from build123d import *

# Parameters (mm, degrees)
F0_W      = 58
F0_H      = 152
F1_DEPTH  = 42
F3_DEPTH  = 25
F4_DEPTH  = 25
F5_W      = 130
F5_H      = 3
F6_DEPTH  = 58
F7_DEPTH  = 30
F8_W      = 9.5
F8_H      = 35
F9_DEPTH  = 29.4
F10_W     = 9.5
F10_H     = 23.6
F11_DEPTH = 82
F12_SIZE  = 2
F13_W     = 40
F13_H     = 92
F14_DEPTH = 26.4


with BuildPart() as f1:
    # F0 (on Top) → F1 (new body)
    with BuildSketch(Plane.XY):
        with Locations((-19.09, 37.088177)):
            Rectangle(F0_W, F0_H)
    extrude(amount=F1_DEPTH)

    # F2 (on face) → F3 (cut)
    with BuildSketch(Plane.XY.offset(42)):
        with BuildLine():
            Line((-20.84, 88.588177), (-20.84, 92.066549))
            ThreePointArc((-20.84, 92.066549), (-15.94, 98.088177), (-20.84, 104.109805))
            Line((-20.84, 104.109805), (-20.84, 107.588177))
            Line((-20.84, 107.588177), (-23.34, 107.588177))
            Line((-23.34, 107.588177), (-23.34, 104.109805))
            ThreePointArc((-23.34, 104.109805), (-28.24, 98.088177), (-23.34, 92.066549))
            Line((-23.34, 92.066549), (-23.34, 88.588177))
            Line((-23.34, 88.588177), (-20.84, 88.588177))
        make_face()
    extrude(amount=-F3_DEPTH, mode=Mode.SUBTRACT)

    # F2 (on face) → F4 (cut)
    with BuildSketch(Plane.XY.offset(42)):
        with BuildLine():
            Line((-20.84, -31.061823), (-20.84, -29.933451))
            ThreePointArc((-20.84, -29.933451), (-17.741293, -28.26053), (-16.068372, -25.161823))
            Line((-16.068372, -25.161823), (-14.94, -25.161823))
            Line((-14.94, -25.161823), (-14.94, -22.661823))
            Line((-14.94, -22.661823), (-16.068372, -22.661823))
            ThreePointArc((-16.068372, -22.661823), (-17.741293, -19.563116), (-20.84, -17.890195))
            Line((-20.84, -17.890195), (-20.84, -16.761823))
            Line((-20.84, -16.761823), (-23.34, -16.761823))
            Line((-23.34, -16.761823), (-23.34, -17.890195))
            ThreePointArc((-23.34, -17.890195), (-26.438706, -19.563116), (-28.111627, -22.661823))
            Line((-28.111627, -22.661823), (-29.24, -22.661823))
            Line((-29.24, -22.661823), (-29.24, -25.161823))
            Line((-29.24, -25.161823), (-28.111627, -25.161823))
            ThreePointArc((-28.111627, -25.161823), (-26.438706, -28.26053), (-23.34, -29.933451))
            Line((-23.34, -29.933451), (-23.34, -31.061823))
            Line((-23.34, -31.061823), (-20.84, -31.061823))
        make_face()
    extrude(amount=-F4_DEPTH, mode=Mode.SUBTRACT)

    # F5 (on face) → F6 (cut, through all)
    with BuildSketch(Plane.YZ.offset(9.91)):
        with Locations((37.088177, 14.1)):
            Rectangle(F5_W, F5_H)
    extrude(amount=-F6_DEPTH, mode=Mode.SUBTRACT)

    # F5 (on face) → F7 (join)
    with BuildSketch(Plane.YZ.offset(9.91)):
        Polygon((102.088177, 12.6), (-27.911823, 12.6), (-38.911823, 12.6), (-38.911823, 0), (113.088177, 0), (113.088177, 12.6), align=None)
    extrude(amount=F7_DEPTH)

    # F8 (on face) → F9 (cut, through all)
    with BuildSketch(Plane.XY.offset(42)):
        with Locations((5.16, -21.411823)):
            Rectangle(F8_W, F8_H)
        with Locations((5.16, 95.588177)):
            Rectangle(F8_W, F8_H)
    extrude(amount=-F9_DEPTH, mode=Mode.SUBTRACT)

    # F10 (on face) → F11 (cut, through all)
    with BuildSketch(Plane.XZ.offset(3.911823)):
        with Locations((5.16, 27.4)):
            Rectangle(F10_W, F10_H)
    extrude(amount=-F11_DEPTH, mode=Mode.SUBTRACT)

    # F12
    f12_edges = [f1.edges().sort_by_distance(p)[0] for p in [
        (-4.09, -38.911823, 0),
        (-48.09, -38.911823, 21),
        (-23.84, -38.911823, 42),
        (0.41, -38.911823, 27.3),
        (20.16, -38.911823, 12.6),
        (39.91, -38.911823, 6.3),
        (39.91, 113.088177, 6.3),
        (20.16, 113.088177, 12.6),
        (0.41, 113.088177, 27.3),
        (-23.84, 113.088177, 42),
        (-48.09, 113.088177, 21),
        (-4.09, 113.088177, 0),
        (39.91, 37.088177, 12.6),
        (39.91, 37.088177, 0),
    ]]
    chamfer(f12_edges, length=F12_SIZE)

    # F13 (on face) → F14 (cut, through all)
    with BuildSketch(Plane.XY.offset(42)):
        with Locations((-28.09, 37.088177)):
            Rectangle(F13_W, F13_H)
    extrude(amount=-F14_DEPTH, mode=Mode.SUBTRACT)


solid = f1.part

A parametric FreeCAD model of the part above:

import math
import FreeCAD as App
import Part
import Sketcher
Q = App.Units.Quantity


def edges_at(feature, points):
    """Names of the edges that pass closest to the given points."""
    edges = feature.Shape.Edges
    near = lambda p: min(range(len(edges)), key=lambda i: edges[i].distToShape(Part.Vertex(*p))[0])
    return sorted({f"Edge{near(p) + 1}" for p in points})

doc = App.newDocument("Part")
body = doc.addObject("PartDesign::Body", "Body")

# Sketch on XY plane
sketch1 = body.newObject("Sketcher::SketchObject", "Sketch")
sketch1.AttachmentSupport = (doc.getObject("XY_Plane"), [""])
sketch1.MapMode = "FlatFace"
sketch1.addGeometry(Part.LineSegment(App.Vector(-48, 113, 0), App.Vector(-48, -39, 0)), False)
sketch1.addGeometry(Part.LineSegment(App.Vector(-48, -39, 0), App.Vector(10, -39, 0)), False)
sketch1.addGeometry(Part.LineSegment(App.Vector(10, -39, 0), App.Vector(10, 113, 0)), False)
sketch1.addGeometry(Part.LineSegment(App.Vector(10, 113, 0), App.Vector(-48, 113, 0)), False)
sketch1.addConstraint(Sketcher.Constraint("Coincident", 0, 2, 1, 1))
sketch1.addConstraint(Sketcher.Constraint("Coincident", 1, 2, 2, 1))
sketch1.addConstraint(Sketcher.Constraint("Coincident", 2, 2, 3, 1))
sketch1.addConstraint(Sketcher.Constraint("Coincident", 3, 2, 0, 1))
sketch1.addConstraint(Sketcher.Constraint("Vertical", 0))
sketch1.addConstraint(Sketcher.Constraint("Horizontal", 1))
sketch1.addConstraint(Sketcher.Constraint("Vertical", 2))
sketch1.addConstraint(Sketcher.Constraint("Horizontal", 3))
sketch1.addConstraint(Sketcher.Constraint("DistanceX", 1, 1, 1, 2, Q("58 mm")))
sketch1.addConstraint(Sketcher.Constraint("DistanceY", 0, 2, 0, 1, Q("152 mm")))
sketch1.addConstraint(Sketcher.Constraint("DistanceX", 0, 2, -1, 1, Q("48.09 mm")))
sketch1.addConstraint(Sketcher.Constraint("DistanceY", 0, 2, -1, 1, Q("38.911823 mm")))
pad1 = body.newObject("PartDesign::Pad", "Pad")
pad1.Profile = sketch1
pad1.Length = 42

# Sketch on XY plane
sketch2 = body.newObject("Sketcher::SketchObject", "Sketch001")
sketch2.AttachmentSupport = (doc.getObject("XY_Plane"), [""])
sketch2.MapMode = "FlatFace"
sketch2.AttachmentOffset = App.Placement(App.Vector(0, 0, 42), App.Rotation())
sketch2.addGeometry(Part.LineSegment(App.Vector(-20.8, 88.6, 0), App.Vector(-20.8, 92.1, 0)), False)
sketch2.addGeometry(Part.ArcOfCircle(Part.Circle(App.Vector(-22.1, 98.1, 0), App.Vector(0, 0, 1), 6.2), math.radians(-78), math.radians(78)), False)
sketch2.addGeometry(Part.LineSegment(App.Vector(-20.8, 104.1, 0), App.Vector(-20.8, 107.6, 0)), False)
sketch2.addGeometry(Part.LineSegment(App.Vector(-20.8, 107.6, 0), App.Vector(-23.3, 107.6, 0)), False)
sketch2.addGeometry(Part.LineSegment(App.Vector(-23.3, 107.6, 0), App.Vector(-23.3, 104.1, 0)), False)
sketch2.addGeometry(Part.ArcOfCircle(Part.Circle(App.Vector(-22.1, 98.1, 0), App.Vector(0, 0, 1), 6.2), math.radians(102), math.radians(258)), False)
sketch2.addGeometry(Part.LineSegment(App.Vector(-23.3, 92.1, 0), App.Vector(-23.3, 88.6, 0)), False)
sketch2.addGeometry(Part.LineSegment(App.Vector(-23.3, 88.6, 0), App.Vector(-20.8, 88.6, 0)), False)
sketch2.addConstraint(Sketcher.Constraint("Coincident", 0, 2, 1, 1))
sketch2.addConstraint(Sketcher.Constraint("Coincident", 1, 2, 2, 1))
sketch2.addConstraint(Sketcher.Constraint("Coincident", 2, 2, 3, 1))
sketch2.addConstraint(Sketcher.Constraint("Coincident", 3, 2, 4, 1))
sketch2.addConstraint(Sketcher.Constraint("Coincident", 4, 2, 5, 1))
sketch2.addConstraint(Sketcher.Constraint("Coincident", 5, 2, 6, 1))
sketch2.addConstraint(Sketcher.Constraint("Coincident", 6, 2, 7, 1))
sketch2.addConstraint(Sketcher.Constraint("Coincident", 7, 2, 0, 1))
sketch2.addConstraint(Sketcher.Constraint("Vertical", 0))
sketch2.addConstraint(Sketcher.Constraint("Vertical", 2))
sketch2.addConstraint(Sketcher.Constraint("Horizontal", 3))
sketch2.addConstraint(Sketcher.Constraint("Vertical", 4))
sketch2.addConstraint(Sketcher.Constraint("Vertical", 6))
sketch2.addConstraint(Sketcher.Constraint("Horizontal", 7))
sketch2.addConstraint(Sketcher.Constraint("Coincident", 5, 3, 1, 3))
sketch2.addConstraint(Sketcher.Constraint("Equal", 1, 5))
sketch2.addConstraint(Sketcher.Constraint("Horizontal", 1, 2, 4, 2))
sketch2.addConstraint(Sketcher.Constraint("Horizontal", 0, 2, 5, 2))
sketch2.addConstraint(Sketcher.Constraint("Vertical", 0, 2, 1, 2))
sketch2.addConstraint(Sketcher.Constraint("Equal", 0, 2))
sketch2.addConstraint(Sketcher.Constraint("Radius", 1, Q("6.15 mm")))
sketch2.addConstraint(Sketcher.Constraint("DistanceX", 3, 2, 3, 1, Q("2.5 mm")))
sketch2.addConstraint(Sketcher.Constraint("DistanceY", 5, 3, 2, 2, Q("9.5 mm")))
sketch2.addConstraint(Sketcher.Constraint("DistanceX", 1, 3, -1, 1, Q("22.09 mm")))
sketch2.addConstraint(Sketcher.Constraint("DistanceY", -1, 1, 0, 2, Q("92.066549 mm")))
pocket1 = body.newObject("PartDesign::Pocket", "Pocket")
pocket1.Profile = sketch2
pocket1.Length = 25

# Sketch on XY plane
sketch3 = body.newObject("Sketcher::SketchObject", "Sketch002")
sketch3.AttachmentSupport = (doc.getObject("XY_Plane"), [""])
sketch3.MapMode = "FlatFace"
sketch3.AttachmentOffset = App.Placement(App.Vector(0, 0, 42), App.Rotation())
sketch3.addGeometry(Part.LineSegment(App.Vector(-20.8, -31.1, 0), App.Vector(-20.8, -29.9, 0)), False)
sketch3.addGeometry(Part.ArcOfCircle(Part.Circle(App.Vector(-22.1, -23.9, 0), App.Vector(0, 0, 1), 6.1), math.radians(-78), math.radians(-12)), False)
sketch3.addGeometry(Part.LineSegment(App.Vector(-16.1, -25.2, 0), App.Vector(-14.9, -25.2, 0)), False)
sketch3.addGeometry(Part.LineSegment(App.Vector(-14.9, -25.2, 0), App.Vector(-14.9, -22.7, 0)), False)
sketch3.addGeometry(Part.LineSegment(App.Vector(-14.9, -22.7, 0), App.Vector(-16.1, -22.7, 0)), False)
sketch3.addGeometry(Part.ArcOfCircle(Part.Circle(App.Vector(-22.1, -23.9, 0), App.Vector(0, 0, 1), 6.1), math.radians(12), math.radians(78)), False)
sketch3.addGeometry(Part.LineSegment(App.Vector(-20.8, -17.9, 0), App.Vector(-20.8, -16.8, 0)), False)
sketch3.addGeometry(Part.LineSegment(App.Vector(-20.8, -16.8, 0), App.Vector(-23.3, -16.8, 0)), False)
sketch3.addGeometry(Part.LineSegment(App.Vector(-23.3, -16.8, 0), App.Vector(-23.3, -17.9, 0)), False)
sketch3.addGeometry(Part.ArcOfCircle(Part.Circle(App.Vector(-22.1, -23.9, 0), App.Vector(0, 0, 1), 6.2), math.radians(102), math.radians(168)), False)
sketch3.addGeometry(Part.LineSegment(App.Vector(-28.1, -22.7, 0), App.Vector(-29.2, -22.7, 0)), False)
sketch3.addGeometry(Part.LineSegment(App.Vector(-29.2, -22.7, 0), App.Vector(-29.2, -25.2, 0)), False)
sketch3.addGeometry(Part.LineSegment(App.Vector(-29.2, -25.2, 0), App.Vector(-28.1, -25.2, 0)), False)
sketch3.addGeometry(Part.ArcOfCircle(Part.Circle(App.Vector(-22.1, -23.9, 0), App.Vector(0, 0, 1), 6.2), math.radians(-168), math.radians(-102)), False)
sketch3.addGeometry(Part.LineSegment(App.Vector(-23.3, -29.9, 0), App.Vector(-23.3, -31.1, 0)), False)
sketch3.addGeometry(Part.LineSegment(App.Vector(-23.3, -31.1, 0), App.Vector(-20.8, -31.1, 0)), False)
sketch3.addConstraint(Sketcher.Constraint("Coincident", 0, 2, 1, 1))
sketch3.addConstraint(Sketcher.Constraint("Coincident", 1, 2, 2, 1))
sketch3.addConstraint(Sketcher.Constraint("Coincident", 2, 2, 3, 1))
sketch3.addConstraint(Sketcher.Constraint("Coincident", 3, 2, 4, 1))
sketch3.addConstraint(Sketcher.Constraint("Coincident", 4, 2, 5, 1))
sketch3.addConstraint(Sketcher.Constraint("Coincident", 5, 2, 6, 1))
sketch3.addConstraint(Sketcher.Constraint("Coincident", 6, 2, 7, 1))
sketch3.addConstraint(Sketcher.Constraint("Coincident", 7, 2, 8, 1))
sketch3.addConstraint(Sketcher.Constraint("Coincident", 8, 2, 9, 1))
sketch3.addConstraint(Sketcher.Constraint("Coincident", 9, 2, 10, 1))
sketch3.addConstraint(Sketcher.Constraint("Coincident", 10, 2, 11, 1))
sketch3.addConstraint(Sketcher.Constraint("Coincident", 11, 2, 12, 1))
sketch3.addConstraint(Sketcher.Constraint("Coincident", 12, 2, 13, 1))
sketch3.addConstraint(Sketcher.Constraint("Coincident", 13, 2, 14, 1))
sketch3.addConstraint(Sketcher.Constraint("Coincident", 14, 2, 15, 1))
sketch3.addConstraint(Sketcher.Constraint("Coincident", 15, 2, 0, 1))
sketch3.addConstraint(Sketcher.Constraint("Vertical", 0))
sketch3.addConstraint(Sketcher.Constraint("Horizontal", 2))
sketch3.addConstraint(Sketcher.Constraint("Vertical", 3))
sketch3.addConstraint(Sketcher.Constraint("Horizontal", 4))
sketch3.addConstraint(Sketcher.Constraint("Vertical", 6))
sketch3.addConstraint(Sketcher.Constraint("Horizontal", 7))
sketch3.addConstraint(Sketcher.Constraint("Vertical", 8))
sketch3.addConstraint(Sketcher.Constraint("Horizontal", 10))
sketch3.addConstraint(Sketcher.Constraint("Vertical", 11))
sketch3.addConstraint(Sketcher.Constraint("Horizontal", 12))
sketch3.addConstraint(Sketcher.Constraint("Vertical", 14))
sketch3.addConstraint(Sketcher.Constraint("Horizontal", 15))
sketch3.addConstraint(Sketcher.Constraint("Coincident", 5, 3, 1, 3))
sketch3.addConstraint(Sketcher.Constraint("Coincident", 9, 3, 1, 3))
sketch3.addConstraint(Sketcher.Constraint("Coincident", 13, 3, 1, 3))
sketch3.addConstraint(Sketcher.Constraint("Equal", 1, 5))
sketch3.addConstraint(Sketcher.Constraint("Equal", 5, 9))
sketch3.addConstraint(Sketcher.Constraint("Equal", 9, 13))
sketch3.addConstraint(Sketcher.Constraint("Horizontal", 5, 2, 8, 2))
sketch3.addConstraint(Sketcher.Constraint("Horizontal", 4, 2, 9, 2))
sketch3.addConstraint(Sketcher.Constraint("Horizontal", 2, 2, 11, 2))
sketch3.addConstraint(Sketcher.Constraint("Horizontal", 0, 2, 13, 2))
sketch3.addConstraint(Sketcher.Constraint("Vertical", 1, 2, 4, 2))
sketch3.addConstraint(Sketcher.Constraint("Vertical", 0, 2, 5, 2))
sketch3.addConstraint(Sketcher.Constraint("Equal", 4, 10))
sketch3.addConstraint(Sketcher.Constraint("Equal", 12, 0))
sketch3.addConstraint(Sketcher.Constraint("Equal", 15, 3))
sketch3.addConstraint(Sketcher.Constraint("Equal", 0, 6))
sketch3.addConstraint(Sketcher.Constraint("Radius", 1, Q("6.15 mm")))
sketch3.addConstraint(Sketcher.Constraint("DistanceX", 7, 2, 7, 1, Q("2.5 mm")))
sketch3.addConstraint(Sketcher.Constraint("DistanceX", 1, 3, -1, 1, Q("22.09 mm")))
sketch3.addConstraint(Sketcher.Constraint("DistanceX", 2, 2, -1, 1, Q("14.94 mm")))
sketch3.addConstraint(Sketcher.Constraint("DistanceY", 0, 2, -1, 1, Q("29.933451 mm")))
pocket2 = body.newObject("PartDesign::Pocket", "Pocket001")
pocket2.Profile = sketch3
pocket2.Length = 25

# Sketch on YZ plane
sketch4 = body.newObject("Sketcher::SketchObject", "Sketch003")
sketch4.AttachmentSupport = (doc.getObject("YZ_Plane"), [""])
sketch4.MapMode = "FlatFace"
sketch4.AttachmentOffset = App.Placement(App.Vector(0, 0, 9.91), App.Rotation())
sketch4.addGeometry(Part.LineSegment(App.Vector(-27.9, 15.6, 0), App.Vector(-27.9, 12.6, 0)), False)
sketch4.addGeometry(Part.LineSegment(App.Vector(-27.9, 12.6, 0), App.Vector(102.1, 12.6, 0)), False)
sketch4.addGeometry(Part.LineSegment(App.Vector(102.1, 12.6, 0), App.Vector(102.1, 15.6, 0)), False)
sketch4.addGeometry(Part.LineSegment(App.Vector(102.1, 15.6, 0), App.Vector(-27.9, 15.6, 0)), False)
sketch4.addConstraint(Sketcher.Constraint("Coincident", 0, 2, 1, 1))
sketch4.addConstraint(Sketcher.Constraint("Coincident", 1, 2, 2, 1))
sketch4.addConstraint(Sketcher.Constraint("Coincident", 2, 2, 3, 1))
sketch4.addConstraint(Sketcher.Constraint("Coincident", 3, 2, 0, 1))
sketch4.addConstraint(Sketcher.Constraint("Vertical", 0))
sketch4.addConstraint(Sketcher.Constraint("Horizontal", 1))
sketch4.addConstraint(Sketcher.Constraint("Vertical", 2))
sketch4.addConstraint(Sketcher.Constraint("Horizontal", 3))
sketch4.addConstraint(Sketcher.Constraint("DistanceX", 1, 1, 1, 2, Q("130 mm")))
sketch4.addConstraint(Sketcher.Constraint("DistanceY", 0, 2, 0, 1, Q("3 mm")))
sketch4.addConstraint(Sketcher.Constraint("DistanceY", -1, 1, 0, 2, Q("12.6 mm")))
sketch4.addConstraint(Sketcher.Constraint("DistanceX", 0, 2, -1, 1, Q("27.911823 mm")))
pocket3 = body.newObject("PartDesign::Pocket", "Pocket002")
pocket3.Profile = sketch4
pocket3.Type = "ThroughAll"

# Sketch on YZ plane
sketch5 = body.newObject("Sketcher::SketchObject", "Sketch004")
sketch5.AttachmentSupport = (doc.getObject("YZ_Plane"), [""])
sketch5.MapMode = "FlatFace"
sketch5.AttachmentOffset = App.Placement(App.Vector(0, 0, 9.91), App.Rotation())
sketch5.addGeometry(Part.LineSegment(App.Vector(-39, 13, 0), App.Vector(-39, 0, 0)), False)
sketch5.addGeometry(Part.LineSegment(App.Vector(-39, 0, 0), App.Vector(113, 0, 0)), False)
sketch5.addGeometry(Part.LineSegment(App.Vector(113, 0, 0), App.Vector(113, 13, 0)), False)
sketch5.addGeometry(Part.LineSegment(App.Vector(113, 13, 0), App.Vector(-39, 13, 0)), False)
sketch5.addConstraint(Sketcher.Constraint("Coincident", 0, 2, 1, 1))
sketch5.addConstraint(Sketcher.Constraint("Coincident", 1, 2, 2, 1))
sketch5.addConstraint(Sketcher.Constraint("Coincident", 2, 2, 3, 1))
sketch5.addConstraint(Sketcher.Constraint("Coincident", 3, 2, 0, 1))
sketch5.addConstraint(Sketcher.Constraint("Vertical", 0))
sketch5.addConstraint(Sketcher.Constraint("Horizontal", 1))
sketch5.addConstraint(Sketcher.Constraint("Vertical", 2))
sketch5.addConstraint(Sketcher.Constraint("Horizontal", 3))
sketch5.addConstraint(Sketcher.Constraint("PointOnObject", 0, 2, -1))
sketch5.addConstraint(Sketcher.Constraint("DistanceX", 1, 1, 1, 2, Q("152 mm")))
sketch5.addConstraint(Sketcher.Constraint("DistanceY", 0, 2, 0, 1, Q("12.6 mm")))
sketch5.addConstraint(Sketcher.Constraint("DistanceX", 0, 2, -1, 1, Q("38.911823 mm")))
pad2 = body.newObject("PartDesign::Pad", "Pad001")
pad2.Profile = sketch5
pad2.Length = 30

# Sketch on XY plane
sketch6 = body.newObject("Sketcher::SketchObject", "Sketch005")
sketch6.AttachmentSupport = (doc.getObject("XY_Plane"), [""])
sketch6.MapMode = "FlatFace"
sketch6.AttachmentOffset = App.Placement(App.Vector(0, 0, 42), App.Rotation())
sketch6.addGeometry(Part.LineSegment(App.Vector(0, -4, 0), App.Vector(0, -39, 0)), False)
sketch6.addGeometry(Part.LineSegment(App.Vector(0, -39, 0), App.Vector(10, -39, 0)), False)
sketch6.addGeometry(Part.LineSegment(App.Vector(10, -39, 0), App.Vector(10, -4, 0)), False)
sketch6.addGeometry(Part.LineSegment(App.Vector(10, -4, 0), App.Vector(0, -4, 0)), False)
sketch6.addGeometry(Part.LineSegment(App.Vector(0, 113, 0), App.Vector(0, 78, 0)), False)
sketch6.addGeometry(Part.LineSegment(App.Vector(0, 78, 0), App.Vector(10, 78, 0)), False)
sketch6.addGeometry(Part.LineSegment(App.Vector(10, 78, 0), App.Vector(10, 113, 0)), False)
sketch6.addGeometry(Part.LineSegment(App.Vector(10, 113, 0), App.Vector(0, 113, 0)), False)
sketch6.addConstraint(Sketcher.Constraint("Coincident", 0, 2, 1, 1))
sketch6.addConstraint(Sketcher.Constraint("Coincident", 1, 2, 2, 1))
sketch6.addConstraint(Sketcher.Constraint("Coincident", 2, 2, 3, 1))
sketch6.addConstraint(Sketcher.Constraint("Coincident", 3, 2, 0, 1))
sketch6.addConstraint(Sketcher.Constraint("Coincident", 4, 2, 5, 1))
sketch6.addConstraint(Sketcher.Constraint("Coincident", 5, 2, 6, 1))
sketch6.addConstraint(Sketcher.Constraint("Coincident", 6, 2, 7, 1))
sketch6.addConstraint(Sketcher.Constraint("Coincident", 7, 2, 4, 1))
sketch6.addConstraint(Sketcher.Constraint("Vertical", 0))
sketch6.addConstraint(Sketcher.Constraint("Horizontal", 1))
sketch6.addConstraint(Sketcher.Constraint("Vertical", 2))
sketch6.addConstraint(Sketcher.Constraint("Horizontal", 3))
sketch6.addConstraint(Sketcher.Constraint("Vertical", 4))
sketch6.addConstraint(Sketcher.Constraint("Horizontal", 5))
sketch6.addConstraint(Sketcher.Constraint("Vertical", 6))
sketch6.addConstraint(Sketcher.Constraint("Horizontal", 7))
sketch6.addConstraint(Sketcher.Constraint("Vertical", 3, 2, 4, 2))
sketch6.addConstraint(Sketcher.Constraint("Vertical", 2, 2, 5, 2))
sketch6.addConstraint(Sketcher.Constraint("Equal", 2, 4))
sketch6.addConstraint(Sketcher.Constraint("DistanceY", 0, 2, 0, 1, Q("35 mm")))
sketch6.addConstraint(Sketcher.Constraint("DistanceX", 1, 1, 1, 2, Q("9.5 mm")))
sketch6.addConstraint(Sketcher.Constraint("DistanceY", 3, 2, 4, 2, Q("82 mm")))
sketch6.addConstraint(Sketcher.Constraint("DistanceX", -1, 1, 0, 2, Q("0.41 mm")))
sketch6.addConstraint(Sketcher.Constraint("DistanceY", 0, 2, -1, 1, Q("38.911823 mm")))
pocket4 = body.newObject("PartDesign::Pocket", "Pocket003")
pocket4.Profile = sketch6
pocket4.Length = 29.4

# Sketch on XZ plane
sketch7 = body.newObject("Sketcher::SketchObject", "Sketch006")
sketch7.AttachmentSupport = (doc.getObject("XZ_Plane"), [""])
sketch7.MapMode = "FlatFace"
sketch7.AttachmentOffset = App.Placement(App.Vector(0, 0, 3.911823), App.Rotation())
sketch7.addGeometry(Part.LineSegment(App.Vector(0, 39, 0), App.Vector(0, 16, 0)), False)
sketch7.addGeometry(Part.LineSegment(App.Vector(0, 16, 0), App.Vector(10, 16, 0)), False)
sketch7.addGeometry(Part.LineSegment(App.Vector(10, 16, 0), App.Vector(10, 39, 0)), False)
sketch7.addGeometry(Part.LineSegment(App.Vector(10, 39, 0), App.Vector(0, 39, 0)), False)
sketch7.addConstraint(Sketcher.Constraint("Coincident", 0, 2, 1, 1))
sketch7.addConstraint(Sketcher.Constraint("Coincident", 1, 2, 2, 1))
sketch7.addConstraint(Sketcher.Constraint("Coincident", 2, 2, 3, 1))
sketch7.addConstraint(Sketcher.Constraint("Coincident", 3, 2, 0, 1))
sketch7.addConstraint(Sketcher.Constraint("Vertical", 0))
sketch7.addConstraint(Sketcher.Constraint("Horizontal", 1))
sketch7.addConstraint(Sketcher.Constraint("Vertical", 2))
sketch7.addConstraint(Sketcher.Constraint("Horizontal", 3))
sketch7.addConstraint(Sketcher.Constraint("DistanceX", 1, 1, 1, 2, Q("9.5 mm")))
sketch7.addConstraint(Sketcher.Constraint("DistanceY", 0, 2, 0, 1, Q("23.6 mm")))
sketch7.addConstraint(Sketcher.Constraint("DistanceY", -1, 1, 0, 2, Q("15.6 mm")))
sketch7.addConstraint(Sketcher.Constraint("DistanceX", -1, 1, 0, 2, Q("0.41 mm")))
pocket5 = body.newObject("PartDesign::Pocket", "Pocket004")
pocket5.Profile = sketch7
pocket5.Type = "ThroughAll"
doc.recompute()

chamfer = body.newObject("PartDesign::Chamfer", "Chamfer")
chamfer.Base = (pocket5, edges_at(pocket5, [
    (-4.09, -38.912, 0),
    (-48.09, -38.912, 21),
    (-23.84, -38.912, 42),
    (0.41, -38.912, 27.3),
    (20.16, -38.912, 12.6),
    (39.91, -38.912, 6.3),
    (39.91, 113.088, 6.3),
    (20.16, 113.088, 12.6),
    (0.41, 113.088, 27.3),
    (-23.84, 113.088, 42),
    (-48.09, 113.088, 21),
    (-4.09, 113.088, 0),
    (39.91, 37.088, 12.6),
    (39.91, 37.088, 0),
]))
chamfer.Size = 2

# Sketch on XY plane
sketch8 = body.newObject("Sketcher::SketchObject", "Sketch007")
sketch8.AttachmentSupport = (doc.getObject("XY_Plane"), [""])
sketch8.MapMode = "FlatFace"
sketch8.AttachmentOffset = App.Placement(App.Vector(0, 0, 42), App.Rotation())
sketch8.addGeometry(Part.LineSegment(App.Vector(-48, 83, 0), App.Vector(-48, -9, 0)), False)
sketch8.addGeometry(Part.LineSegment(App.Vector(-48, -9, 0), App.Vector(-8, -9, 0)), False)
sketch8.addGeometry(Part.LineSegment(App.Vector(-8, -9, 0), App.Vector(-8, 83, 0)), False)
sketch8.addGeometry(Part.LineSegment(App.Vector(-8, 83, 0), App.Vector(-48, 83, 0)), False)
sketch8.addConstraint(Sketcher.Constraint("Coincident", 0, 2, 1, 1))
sketch8.addConstraint(Sketcher.Constraint("Coincident", 1, 2, 2, 1))
sketch8.addConstraint(Sketcher.Constraint("Coincident", 2, 2, 3, 1))
sketch8.addConstraint(Sketcher.Constraint("Coincident", 3, 2, 0, 1))
sketch8.addConstraint(Sketcher.Constraint("Vertical", 0))
sketch8.addConstraint(Sketcher.Constraint("Horizontal", 1))
sketch8.addConstraint(Sketcher.Constraint("Vertical", 2))
sketch8.addConstraint(Sketcher.Constraint("Horizontal", 3))
sketch8.addConstraint(Sketcher.Constraint("DistanceX", 1, 1, 1, 2, Q("40 mm")))
sketch8.addConstraint(Sketcher.Constraint("DistanceY", 0, 2, 0, 1, Q("92 mm")))
sketch8.addConstraint(Sketcher.Constraint("DistanceX", 0, 2, -1, 1, Q("48.09 mm")))
sketch8.addConstraint(Sketcher.Constraint("DistanceY", 0, 2, -1, 1, Q("8.911823 mm")))
pocket6 = body.newObject("PartDesign::Pocket", "Pocket005")
pocket6.Profile = sketch8
pocket6.Length = 26.4

doc.recompute()
